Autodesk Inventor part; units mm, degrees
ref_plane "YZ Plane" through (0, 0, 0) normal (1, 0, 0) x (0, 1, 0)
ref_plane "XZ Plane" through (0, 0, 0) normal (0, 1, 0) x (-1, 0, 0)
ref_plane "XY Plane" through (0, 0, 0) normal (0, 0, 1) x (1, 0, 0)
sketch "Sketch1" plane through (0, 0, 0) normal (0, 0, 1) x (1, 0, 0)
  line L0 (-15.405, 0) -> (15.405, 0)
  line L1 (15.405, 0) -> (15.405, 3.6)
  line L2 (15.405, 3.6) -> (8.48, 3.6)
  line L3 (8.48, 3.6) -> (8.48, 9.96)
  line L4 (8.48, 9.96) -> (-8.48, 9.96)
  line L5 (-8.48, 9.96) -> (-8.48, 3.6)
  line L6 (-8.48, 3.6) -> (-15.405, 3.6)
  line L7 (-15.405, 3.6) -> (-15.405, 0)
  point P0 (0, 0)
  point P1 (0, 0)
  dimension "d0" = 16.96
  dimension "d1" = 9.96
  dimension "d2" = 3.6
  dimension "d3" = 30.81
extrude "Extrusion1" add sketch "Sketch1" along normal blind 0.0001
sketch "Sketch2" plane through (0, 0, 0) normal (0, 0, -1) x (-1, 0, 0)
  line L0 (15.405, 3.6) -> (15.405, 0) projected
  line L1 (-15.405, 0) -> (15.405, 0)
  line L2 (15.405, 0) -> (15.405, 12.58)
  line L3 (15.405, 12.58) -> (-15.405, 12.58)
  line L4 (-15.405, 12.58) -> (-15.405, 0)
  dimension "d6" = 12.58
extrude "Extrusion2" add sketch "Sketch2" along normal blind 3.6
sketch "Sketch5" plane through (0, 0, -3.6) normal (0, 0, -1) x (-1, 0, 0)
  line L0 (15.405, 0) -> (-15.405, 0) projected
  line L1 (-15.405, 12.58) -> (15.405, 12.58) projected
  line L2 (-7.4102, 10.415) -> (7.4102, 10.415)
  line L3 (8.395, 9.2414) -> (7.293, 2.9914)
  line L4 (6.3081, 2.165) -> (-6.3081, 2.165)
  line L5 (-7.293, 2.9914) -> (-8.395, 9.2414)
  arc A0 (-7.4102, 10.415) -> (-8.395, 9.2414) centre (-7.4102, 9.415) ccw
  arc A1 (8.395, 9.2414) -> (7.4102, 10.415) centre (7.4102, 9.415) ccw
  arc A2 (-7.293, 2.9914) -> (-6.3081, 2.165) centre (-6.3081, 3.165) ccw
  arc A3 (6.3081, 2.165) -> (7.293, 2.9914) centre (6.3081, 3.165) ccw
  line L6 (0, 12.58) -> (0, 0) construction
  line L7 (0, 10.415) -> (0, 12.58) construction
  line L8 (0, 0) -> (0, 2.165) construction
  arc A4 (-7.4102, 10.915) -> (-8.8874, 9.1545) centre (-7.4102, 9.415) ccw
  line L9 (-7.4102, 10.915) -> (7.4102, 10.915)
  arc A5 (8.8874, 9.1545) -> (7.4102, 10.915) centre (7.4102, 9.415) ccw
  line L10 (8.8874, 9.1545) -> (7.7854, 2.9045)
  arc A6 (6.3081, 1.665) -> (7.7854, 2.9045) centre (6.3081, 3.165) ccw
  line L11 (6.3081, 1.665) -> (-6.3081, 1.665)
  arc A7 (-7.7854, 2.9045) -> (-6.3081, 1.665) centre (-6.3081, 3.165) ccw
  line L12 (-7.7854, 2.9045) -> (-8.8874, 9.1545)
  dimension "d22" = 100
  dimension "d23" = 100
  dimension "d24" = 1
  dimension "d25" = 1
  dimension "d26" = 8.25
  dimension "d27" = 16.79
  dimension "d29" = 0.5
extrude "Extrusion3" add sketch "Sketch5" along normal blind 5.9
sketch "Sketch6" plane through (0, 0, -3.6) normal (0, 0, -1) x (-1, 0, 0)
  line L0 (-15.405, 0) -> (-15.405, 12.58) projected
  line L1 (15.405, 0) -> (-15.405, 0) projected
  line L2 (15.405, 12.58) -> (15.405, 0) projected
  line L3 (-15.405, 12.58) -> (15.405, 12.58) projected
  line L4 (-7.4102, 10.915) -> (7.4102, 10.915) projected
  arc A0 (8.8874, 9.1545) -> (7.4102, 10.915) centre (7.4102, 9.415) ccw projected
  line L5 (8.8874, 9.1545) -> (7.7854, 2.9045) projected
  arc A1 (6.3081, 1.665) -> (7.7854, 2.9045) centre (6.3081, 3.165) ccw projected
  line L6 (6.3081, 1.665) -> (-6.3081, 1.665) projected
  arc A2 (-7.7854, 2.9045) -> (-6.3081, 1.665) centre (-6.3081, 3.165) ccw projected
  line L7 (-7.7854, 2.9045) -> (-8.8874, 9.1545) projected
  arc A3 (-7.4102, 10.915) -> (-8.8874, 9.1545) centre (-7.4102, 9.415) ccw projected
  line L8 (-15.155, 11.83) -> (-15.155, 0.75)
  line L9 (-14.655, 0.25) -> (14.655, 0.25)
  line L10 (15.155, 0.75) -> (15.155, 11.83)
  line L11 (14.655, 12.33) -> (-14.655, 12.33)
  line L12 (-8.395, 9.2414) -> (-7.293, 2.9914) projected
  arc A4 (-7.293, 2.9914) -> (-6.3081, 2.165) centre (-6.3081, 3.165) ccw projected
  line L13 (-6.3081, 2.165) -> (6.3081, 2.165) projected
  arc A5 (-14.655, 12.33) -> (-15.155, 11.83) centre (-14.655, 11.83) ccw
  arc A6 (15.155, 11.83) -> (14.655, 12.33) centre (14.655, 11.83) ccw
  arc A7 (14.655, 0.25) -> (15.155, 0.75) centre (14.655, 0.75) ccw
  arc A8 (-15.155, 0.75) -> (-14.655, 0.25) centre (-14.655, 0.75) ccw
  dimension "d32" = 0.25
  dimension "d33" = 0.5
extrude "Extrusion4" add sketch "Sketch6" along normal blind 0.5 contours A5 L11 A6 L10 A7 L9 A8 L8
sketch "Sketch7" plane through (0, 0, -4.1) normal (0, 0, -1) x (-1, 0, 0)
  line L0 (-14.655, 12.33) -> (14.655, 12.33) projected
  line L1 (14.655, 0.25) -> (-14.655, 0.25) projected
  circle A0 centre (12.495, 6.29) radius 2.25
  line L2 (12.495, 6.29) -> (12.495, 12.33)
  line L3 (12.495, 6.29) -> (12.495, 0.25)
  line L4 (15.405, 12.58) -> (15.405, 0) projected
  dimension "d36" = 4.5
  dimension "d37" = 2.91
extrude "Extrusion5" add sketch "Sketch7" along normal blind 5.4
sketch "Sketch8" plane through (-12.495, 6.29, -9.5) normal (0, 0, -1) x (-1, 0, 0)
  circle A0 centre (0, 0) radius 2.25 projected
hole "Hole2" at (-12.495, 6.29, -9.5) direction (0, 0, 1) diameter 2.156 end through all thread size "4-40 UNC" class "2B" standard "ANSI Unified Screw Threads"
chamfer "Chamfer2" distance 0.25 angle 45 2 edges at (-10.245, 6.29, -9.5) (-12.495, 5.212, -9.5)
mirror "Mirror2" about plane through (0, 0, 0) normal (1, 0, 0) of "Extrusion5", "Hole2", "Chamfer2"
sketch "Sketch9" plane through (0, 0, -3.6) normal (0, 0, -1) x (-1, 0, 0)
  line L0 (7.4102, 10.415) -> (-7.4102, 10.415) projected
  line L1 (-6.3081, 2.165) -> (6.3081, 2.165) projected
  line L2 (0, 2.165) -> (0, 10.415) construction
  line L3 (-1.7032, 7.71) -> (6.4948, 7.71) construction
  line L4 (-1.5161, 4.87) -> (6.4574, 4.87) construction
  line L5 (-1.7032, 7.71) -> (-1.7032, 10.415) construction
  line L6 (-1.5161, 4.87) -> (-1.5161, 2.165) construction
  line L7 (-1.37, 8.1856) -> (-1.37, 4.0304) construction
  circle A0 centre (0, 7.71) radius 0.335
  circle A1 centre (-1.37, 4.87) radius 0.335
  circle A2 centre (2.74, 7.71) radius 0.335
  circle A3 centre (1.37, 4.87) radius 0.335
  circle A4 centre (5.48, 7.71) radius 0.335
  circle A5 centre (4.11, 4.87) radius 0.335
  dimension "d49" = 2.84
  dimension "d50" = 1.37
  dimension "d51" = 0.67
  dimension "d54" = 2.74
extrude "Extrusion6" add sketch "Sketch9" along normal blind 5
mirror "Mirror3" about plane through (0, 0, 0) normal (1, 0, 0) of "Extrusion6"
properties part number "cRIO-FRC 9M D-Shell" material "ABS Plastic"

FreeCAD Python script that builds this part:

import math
import FreeCAD as App
import Part
import Sketcher
Q = App.Units.Quantity


def edges_at(feature, points):
    """Names of the edges that pass closest to the given points."""
    edges = feature.Shape.Edges
    near = lambda p: min(range(len(edges)), key=lambda i: edges[i].distToShape(Part.Vertex(*p))[0])
    return sorted({f"Edge{near(p) + 1}" for p in points})

doc = App.newDocument("Part")
body = doc.addObject("PartDesign::Body", "Body")

# Sketch on XY plane
sketch1 = body.newObject("Sketcher::SketchObject", "Sketch")
sketch1.AttachmentSupport = (doc.getObject("XY_Plane"), [""])
sketch1.MapMode = "FlatFace"
sketch1.addGeometry([
    Part.LineSegment(App.Vector(-15.4, 3.6, 0), App.Vector(-15.4, 0, 0)),  # 0
    Part.LineSegment(App.Vector(-15.4, 0, 0), App.Vector(15.4, 0, 0)),  # 1
    Part.LineSegment(App.Vector(15.4, 0, 0), App.Vector(15.4, 3.6, 0)),  # 2
    Part.LineSegment(App.Vector(15.4, 3.6, 0), App.Vector(8.5, 3.6, 0)),  # 3
    Part.LineSegment(App.Vector(8.5, 3.6, 0), App.Vector(8.5, 10, 0)),  # 4
    Part.LineSegment(App.Vector(8.5, 10, 0), App.Vector(-8.5, 10, 0)),  # 5
    Part.LineSegment(App.Vector(-8.5, 10, 0), App.Vector(-8.5, 3.6, 0)),  # 6
    Part.LineSegment(App.Vector(-8.5, 3.6, 0), App.Vector(-15.4, 3.6, 0)),  # 7
], False)
sketch1.addConstraint([
    Sketcher.Constraint("Coincident", 0, 2, 1, 1),
    Sketcher.Constraint("Coincident", 1, 2, 2, 1),
    Sketcher.Constraint("Coincident", 2, 2, 3, 1),
    Sketcher.Constraint("Coincident", 3, 2, 4, 1),
    Sketcher.Constraint("Coincident", 4, 2, 5, 1),
    Sketcher.Constraint("Coincident", 5, 2, 6, 1),
    Sketcher.Constraint("Coincident", 6, 2, 7, 1),
    Sketcher.Constraint("Coincident", 7, 2, 0, 1),
    Sketcher.Constraint("Vertical", 0),
    Sketcher.Constraint("Horizontal", 1),
    Sketcher.Constraint("Vertical", 2),
    Sketcher.Constraint("Horizontal", 3),
    Sketcher.Constraint("Vertical", 4),
    Sketcher.Constraint("Horizontal", 5),
    Sketcher.Constraint("Vertical", 6),
    Sketcher.Constraint("Horizontal", 7),
    Sketcher.Constraint("Symmetric", 0, 2, 1, 2, -1, 1),
    Sketcher.Constraint("Symmetric", 3, 2, 6, 2, -2),
    Sketcher.Constraint("DistanceY", 0, 2, 0, 1, 3.6),
    Sketcher.Constraint("DistanceX", 1, 1, 1, 2, 30.81),
    Sketcher.Constraint("DistanceX", 5, 2, 5, 1, 16.96),
    Sketcher.Constraint("DistanceY", -1, 1, 4, 2, 9.96),
])
pad1 = body.newObject("PartDesign::Pad", "Pad")
pad1.Profile = sketch1
pad1.Length = 0.0001

# Sketch on XY plane
sketch2 = body.newObject("Sketcher::SketchObject", "Sketch001")
sketch2.AttachmentSupport = (doc.getObject("XY_Plane"), [""])
sketch2.MapMode = "FlatFace"
sketch2.addGeometry([
    Part.LineSegment(App.Vector(-15, 0, 0), App.Vector(-15, 13, 0)),
    Part.LineSegment(App.Vector(-15, 13, 0), App.Vector(15, 13, 0)),
    Part.LineSegment(App.Vector(15, 13, 0), App.Vector(15, 0, 0)),
    Part.LineSegment(App.Vector(15, 0, 0), App.Vector(-15, 0, 0)),
], False)
sketch2.addConstraint([
    Sketcher.Constraint("Coincident", 0, 2, 1, 1),
    Sketcher.Constraint("Coincident", 1, 2, 2, 1),
    Sketcher.Constraint("Coincident", 2, 2, 3, 1),
    Sketcher.Constraint("Coincident", 3, 2, 0, 1),
    Sketcher.Constraint("Vertical", 0),
    Sketcher.Constraint("Horizontal", 1),
    Sketcher.Constraint("Vertical", 2),
    Sketcher.Constraint("Horizontal", 3),
    Sketcher.Constraint("Symmetric", 2, 2, 3, 2, -1, 1),
    Sketcher.Constraint("DistanceY", 0, 1, 0, 2, 12.58),
    Sketcher.Constraint("DistanceX", 1, 1, 1, 2, 30.81),
])
pad2 = body.newObject("PartDesign::Pad", "Pad001")
pad2.Profile = sketch2
pad2.Length = 3.6
pad2.Reversed = True

# Sketch on XY plane
sketch3 = body.newObject("Sketcher::SketchObject", "Sketch002")
sketch3.AttachmentSupport = (doc.getObject("XY_Plane"), [""])
sketch3.MapMode = "FlatFace"
sketch3.AttachmentOffset = App.Placement(App.Vector(0, 0, -3.6), App.Rotation())
sketch3.addGeometry([
    Part.LineSegment(App.Vector(-7.4, 10.9, 0), App.Vector(7.4, 10.9, 0)),  # 0
    Part.ArcOfCircle(Part.Circle(App.Vector(7.4, 9.4, 0), App.Vector(0, 0, 1), 1.5), math.radians(-10), math.radians(90)),  # 1
    Part.LineSegment(App.Vector(8.9, 9.2, 0), App.Vector(7.8, 2.9, 0)),  # 2
    Part.ArcOfCircle(Part.Circle(App.Vector(6.3, 3.2, 0), App.Vector(0, 0, 1), 1.5), math.radians(-90), math.radians(-10)),  # 3
    Part.LineSegment(App.Vector(6.3, 1.7, 0), App.Vector(-6.3, 1.7, 0)),  # 4
    Part.ArcOfCircle(Part.Circle(App.Vector(-6.3, 3.2, 0), App.Vector(0, 0, 1), 1.5), math.radians(-170), math.radians(-90)),  # 5
    Part.LineSegment(App.Vector(-7.8, 2.9, 0), App.Vector(-8.9, 9.2, 0)),  # 6
    Part.ArcOfCircle(Part.Circle(App.Vector(-7.4, 9.4, 0), App.Vector(0, 0, 1), 1.5), math.radians(90), math.radians(190)),  # 7
    Part.ArcOfCircle(Part.Circle(App.Vector(7.4, 9.4, 0), App.Vector(0, 0, 1), 1), math.radians(-10), math.radians(90)),  # 8
    Part.LineSegment(App.Vector(7.4, 10.4, 0), App.Vector(-7.4, 10.4, 0)),  # 9
    Part.ArcOfCircle(Part.Circle(App.Vector(-7.4, 9.4, 0), App.Vector(0, 0, 1), 1), math.radians(90), math.radians(190)),  # 10
    Part.LineSegment(App.Vector(-8.4, 9.2, 0), App.Vector(-7.3, 3, 0)),  # 11
    Part.ArcOfCircle(Part.Circle(App.Vector(-6.3, 3.2, 0), App.Vector(0, 0, 1), 1), math.radians(-170), math.radians(-90)),  # 12
    Part.LineSegment(App.Vector(-6.3, 2.2, 0), App.Vector(6.3, 2.2, 0)),  # 13
    Part.ArcOfCircle(Part.Circle(App.Vector(6.3, 3.2, 0), App.Vector(0, 0, 1), 1), math.radians(-90), math.radians(-10)),  # 14
    Part.LineSegment(App.Vector(7.3, 3, 0), App.Vector(8.4, 9.2, 0)),  # 15
], False)
sketch3.addConstraint([
    Sketcher.Constraint("Tangent", 0, 2, 1, 2),
    Sketcher.Constraint("Tangent", 1, 1, 2, 1),
    Sketcher.Constraint("Tangent", 2, 2, 3, 2),
    Sketcher.Constraint("Tangent", 3, 1, 4, 1),
    Sketcher.Constraint("Tangent", 4, 2, 5, 2),
    Sketcher.Constraint("Tangent", 5, 1, 6, 1),
    Sketcher.Constraint("Tangent", 6, 2, 7, 2),
    Sketcher.Constraint("Tangent", 7, 1, 0, 1),
    Sketcher.Constraint("Tangent", 8, 2, 9, 1),
    Sketcher.Constraint("Tangent", 9, 2, 10, 1),
    Sketcher.Constraint("Tangent", 10, 2, 11, 1),
    Sketcher.Constraint("Tangent", 11, 2, 12, 1),
    Sketcher.Constraint("Tangent", 12, 2, 13, 1),
    Sketcher.Constraint("Tangent", 13, 2, 14, 1),
    Sketcher.Constraint("Tangent", 14, 2, 15, 1),
    Sketcher.Constraint("Tangent", 15, 2, 8, 1),
    Sketcher.Constraint("Horizontal", 0),
    Sketcher.Constraint("Horizontal", 4),
    Sketcher.Constraint("Horizontal", 9),
    Sketcher.Constraint("Horizontal", 13),
    Sketcher.Constraint("Coincident", 8, 3, 1, 3),
    Sketcher.Constraint("Coincident", 10, 3, 7, 3),
    Sketcher.Constraint("Coincident", 12, 3, 5, 3),
    Sketcher.Constraint("Coincident", 14, 3, 3, 3),
    Sketcher.Constraint("Equal", 1, 3),
    Sketcher.Constraint("Equal", 3, 5),
    Sketcher.Constraint("Equal", 5, 7),
    Sketcher.Constraint("Equal", 10, 12),
    Sketcher.Constraint("Symmetric", 2, 2, 5, 1, -2),
    Sketcher.Constraint("Radius", 8, 1.0),
    Sketcher.Constraint("Angle", 2, Q("-99.9996 deg")),
    Sketcher.Constraint("Radius", 1, 1.5),
    Sketcher.Constraint("DistanceY", 3, 3, 1, 3, 6.25),
    Sketcher.Constraint("DistanceX", 0, 1, 0, 2, 14.8204),
    Sketcher.Constraint("DistanceY", -1, 1, 1, 3, 9.415),
])
pad3 = body.newObject("PartDesign::Pad", "Pad002")
pad3.Profile = sketch3
pad3.Length = 5.9
pad3.Reversed = True

# Sketch on XY plane
sketch4 = body.newObject("Sketcher::SketchObject", "Sketch003")
sketch4.AttachmentSupport = (doc.getObject("XY_Plane"), [""])
sketch4.MapMode = "FlatFace"
sketch4.AttachmentOffset = App.Placement(App.Vector(0, 0, -3.6), App.Rotation())
sketch4.addGeometry([
    Part.ArcOfCircle(Part.Circle(App.Vector(14.7, 11.8, 0), App.Vector(0, 0, 1), 0.5), math.radians(0), math.radians(90)),  # 0
    Part.LineSegment(App.Vector(15.2, 11.8, 0), App.Vector(15.2, 0.8, 0)),  # 1
    Part.ArcOfCircle(Part.Circle(App.Vector(14.7, 0.8, 0), App.Vector(0, 0, 1), 0.5), math.radians(-90), math.radians(0)),  # 2
    Part.LineSegment(App.Vector(14.7, 0.2, 0), App.Vector(-14.7, 0.2, 0)),  # 3
    Part.ArcOfCircle(Part.Circle(App.Vector(-14.7, 0.8, 0), App.Vector(0, 0, 1), 0.5), math.radians(180), math.radians(270)),  # 4
    Part.LineSegment(App.Vector(-15.2, 0.8, 0), App.Vector(-15.2, 11.8, 0)),  # 5
    Part.ArcOfCircle(Part.Circle(App.Vector(-14.7, 11.8, 0), App.Vector(0, 0, 1), 0.5), math.radians(90), math.radians(180)),  # 6
    Part.LineSegment(App.Vector(-14.7, 12.3, 0), App.Vector(14.7, 12.3, 0)),  # 7
    Part.ArcOfCircle(Part.Circle(App.Vector(7.4, 9.4, 0), App.Vector(0, 0, 1), 1.5), math.radians(-10), math.radians(90)),  # 8
    Part.LineSegment(App.Vector(7.4, 10.9, 0), App.Vector(-7.4, 10.9, 0)),  # 9
    Part.ArcOfCircle(Part.Circle(App.Vector(-7.4, 9.4, 0), App.Vector(0, 0, 1), 1.5), math.radians(90), math.radians(190)),  # 10
    Part.LineSegment(App.Vector(-8.9, 9.2, 0), App.Vector(-7.8, 2.9, 0)),  # 11
    Part.ArcOfCircle(Part.Circle(App.Vector(-6.3, 3.2, 0), App.Vector(0, 0, 1), 1.5), math.radians(-170), math.radians(-90)),  # 12
    Part.LineSegment(App.Vector(-6.3, 1.7, 0), App.Vector(6.3, 1.7, 0)),  # 13
    Part.ArcOfCircle(Part.Circle(App.Vector(6.3, 3.2, 0), App.Vector(0, 0, 1), 1.5), math.radians(-90), math.radians(-10)),  # 14
    Part.LineSegment(App.Vector(7.8, 2.9, 0), App.Vector(8.9, 9.2, 0)),  # 15
], False)
sketch4.addConstraint([
    Sketcher.Constraint("Tangent", 0, 1, 1, 1),
    Sketcher.Constraint("Tangent", 1, 2, 2, 2),
    Sketcher.Constraint("Tangent", 2, 1, 3, 1),
    Sketcher.Constraint("Tangent", 3, 2, 4, 2),
    Sketcher.Constraint("Tangent", 4, 1, 5, 1),
    Sketcher.Constraint("Tangent", 5, 2, 6, 2),
    Sketcher.Constraint("Tangent", 6, 1, 7, 1),
    Sketcher.Constraint("Tangent", 7, 2, 0, 2),
    Sketcher.Constraint("Tangent", 8, 2, 9, 1),
    Sketcher.Constraint("Tangent", 9, 2, 10, 1),
    Sketcher.Constraint("Tangent", 10, 2, 11, 1),
    Sketcher.Constraint("Tangent", 11, 2, 12, 1),
    Sketcher.Constraint("Tangent", 12, 2, 13, 1),
    Sketcher.Constraint("Tangent", 13, 2, 14, 1),
    Sketcher.Constraint("Tangent", 14, 2, 15, 1),
    Sketcher.Constraint("Tangent", 15, 2, 8, 1),
    Sketcher.Constraint("Vertical", 1),
    Sketcher.Constraint("Horizontal", 3),
    Sketcher.Constraint("Vertical", 5),
    Sketcher.Constraint("Horizontal", 7),
    Sketcher.Constraint("Horizontal", 9),
    Sketcher.Constraint("Horizontal", 13),
    Sketcher.Constraint("Equal", 0, 2),
    Sketcher.Constraint("Equal", 2, 4),
    Sketcher.Constraint("Equal", 4, 6),
    Sketcher.Constraint("Equal", 8, 10),
    Sketcher.Constraint("Equal", 10, 12),
    Sketcher.Constraint("Equal", 12, 14),
    Sketcher.Constraint("Symmetric", 11, 2, 14, 2, -2),
    Sketcher.Constraint("Radius", 0, 0.5),
    Sketcher.Constraint("Radius", 8, 1.5),
    Sketcher.Constraint("DistanceY", -1, 1, 2, 1, 0.25),
    Sketcher.Constraint("Angle", 11, Q("-80.0004 deg")),
    Sketcher.Constraint("DistanceX", 3, 2, 3, 1, 29.31),
    Sketcher.Constraint("DistanceY", 1, 2, 1, 1, 11.08),
    Sketcher.Constraint("DistanceY", 12, 3, 10, 3, 6.25),
    Sketcher.Constraint("DistanceX", 9, 2, 9, 1, 14.8204),
    Sketcher.Constraint("DistanceX", -1, 1, 0, 3, 14.655),
    Sketcher.Constraint("DistanceY", -1, 1, 8, 3, 9.415),
])
pad4 = body.newObject("PartDesign::Pad", "Pad003")
pad4.Profile = sketch4
pad4.Length = 0.5
pad4.Reversed = True

# Sketch on XY plane
sketch5 = body.newObject("Sketcher::SketchObject", "Sketch004")
sketch5.AttachmentSupport = (doc.getObject("XY_Plane"), [""])
sketch5.MapMode = "FlatFace"
sketch5.AttachmentOffset = App.Placement(App.Vector(0, 0, -4.1), App.Rotation())
sketch5.addGeometry(Part.Circle(App.Vector(-12.5, 6.3, 0), App.Vector(0, 0, 1), 2.2), False)
sketch5.addConstraint([
    Sketcher.Constraint("Diameter", 0, 4.5),
    Sketcher.Constraint("DistanceY", -1, 1, 0, 3, 6.29),
    Sketcher.Constraint("DistanceX", 0, 3, -1, 1, 12.495),
])
pad5 = body.newObject("PartDesign::Pad", "Pad004")
pad5.Profile = sketch5
pad5.Length = 5.4
pad5.Reversed = True

# Sketch on XY plane
sketch6 = body.newObject("Sketcher::SketchObject", "Sketch005")
sketch6.AttachmentSupport = (doc.getObject("XY_Plane"), [""])
sketch6.MapMode = "FlatFace"
sketch6.AttachmentOffset = App.Placement(App.Vector(0, 0, -9.5), App.Rotation())
sketch6.addGeometry(Part.Circle(App.Vector(-12.5, 6.3, 0), App.Vector(0, 0, 1), 1.1), False)
sketch6.addConstraint([
    Sketcher.Constraint("Diameter", 0, 2.156),
    Sketcher.Constraint("DistanceY", -1, 1, 0, 3, 6.29),
    Sketcher.Constraint("DistanceX", 0, 3, -1, 1, 12.495),
])
doc.recompute()
hole = body.newObject("PartDesign::Hole", "Hole")
hole.Profile = sketch6
hole.ThreadType = "None"
hole.Diameter = 2.156
hole.DepthType = "ThroughAll"
hole.Reversed = True
doc.recompute()

chamfer = body.newObject("PartDesign::Chamfer", "Chamfer")
chamfer.Base = (hole, edges_at(hole, [(-10.245, 6.29, -9.5), (-12.495, 5.212, -9.5)]))
chamfer.Size = 0.25
doc.recompute()

mirrored = body.newObject("PartDesign::Mirrored", "Mirrored")
mirrored.Originals = [pad5, hole, chamfer]
mirrored.MirrorPlane = (doc.getObject("YZ_Plane"), [""])
body.Tip = mirrored

# Sketch on XY plane
sketch7 = body.newObject("Sketcher::SketchObject", "Sketch006")
sketch7.AttachmentSupport = (doc.getObject("XY_Plane"), [""])
sketch7.MapMode = "FlatFace"
sketch7.AttachmentOffset = App.Placement(App.Vector(0, 0, -3.6), App.Rotation())
sketch7.addGeometry([
    Part.Circle(App.Vector(0, 7.71, 0), App.Vector(0, 0, 1), 0.34),  # 0
    Part.Circle(App.Vector(1.37, 4.87, 0), App.Vector(0, 0, 1), 0.34),  # 1
    Part.Circle(App.Vector(-2.74, 7.71, 0), App.Vector(0, 0, 1), 0.34),  # 2
    Part.Circle(App.Vector(-1.37, 4.87, 0), App.Vector(0, 0, 1), 0.34),  # 3
    Part.Circle(App.Vector(-5.48, 7.71, 0), App.Vector(0, 0, 1), 0.34),  # 4
    Part.Circle(App.Vector(-4.11, 4.87, 0), App.Vector(0, 0, 1), 0.34),  # 5
], False)
sketch7.addConstraint([
    Sketcher.Constraint("Equal", 0, 1),
    Sketcher.Constraint("Equal", 1, 2),
    Sketcher.Constraint("Equal", 2, 3),
    Sketcher.Constraint("Equal", 3, 4),
    Sketcher.Constraint("Equal", 4, 5),
    Sketcher.Constraint("Symmetric", 1, 3, 3, 3, -2),
    Sketcher.Constraint("PointOnObject", 0, 3, -2),
    Sketcher.Constraint("Horizontal", 0, 3, 2, 3),
    Sketcher.Constraint("Horizontal", 2, 3, 4, 3),
    Sketcher.Constraint("Horizontal", 3, 3, 5, 3),
    Sketcher.Constraint("Diameter", 0, 0.67),
    Sketcher.Constraint("DistanceX", -1, 1, 1, 3, 1.37),
    Sketcher.Constraint("DistanceX", 2, 3, -1, 1, 2.74),
    Sketcher.Constraint("DistanceY", 1, 3, 0, 3, 2.84),
    Sketcher.Constraint("DistanceX", 4, 3, 2, 3, 2.74),
    Sketcher.Constraint("DistanceX", 5, 3, 3, 3, 2.74),
    Sketcher.Constraint("DistanceY", -1, 1, 0, 3, 7.71),
])
pad6 = body.newObject("PartDesign::Pad", "Pad005")
pad6.Profile = sketch7
pad6.Length = 5
pad6.Reversed = True
doc.recompute()

mirrored2 = body.newObject("PartDesign::Mirrored", "Mirrored001")
mirrored2.Originals = [pad6]
mirrored2.MirrorPlane = (doc.getObject("YZ_Plane"), [""])
body.Tip = mirrored2

doc.recompute()
